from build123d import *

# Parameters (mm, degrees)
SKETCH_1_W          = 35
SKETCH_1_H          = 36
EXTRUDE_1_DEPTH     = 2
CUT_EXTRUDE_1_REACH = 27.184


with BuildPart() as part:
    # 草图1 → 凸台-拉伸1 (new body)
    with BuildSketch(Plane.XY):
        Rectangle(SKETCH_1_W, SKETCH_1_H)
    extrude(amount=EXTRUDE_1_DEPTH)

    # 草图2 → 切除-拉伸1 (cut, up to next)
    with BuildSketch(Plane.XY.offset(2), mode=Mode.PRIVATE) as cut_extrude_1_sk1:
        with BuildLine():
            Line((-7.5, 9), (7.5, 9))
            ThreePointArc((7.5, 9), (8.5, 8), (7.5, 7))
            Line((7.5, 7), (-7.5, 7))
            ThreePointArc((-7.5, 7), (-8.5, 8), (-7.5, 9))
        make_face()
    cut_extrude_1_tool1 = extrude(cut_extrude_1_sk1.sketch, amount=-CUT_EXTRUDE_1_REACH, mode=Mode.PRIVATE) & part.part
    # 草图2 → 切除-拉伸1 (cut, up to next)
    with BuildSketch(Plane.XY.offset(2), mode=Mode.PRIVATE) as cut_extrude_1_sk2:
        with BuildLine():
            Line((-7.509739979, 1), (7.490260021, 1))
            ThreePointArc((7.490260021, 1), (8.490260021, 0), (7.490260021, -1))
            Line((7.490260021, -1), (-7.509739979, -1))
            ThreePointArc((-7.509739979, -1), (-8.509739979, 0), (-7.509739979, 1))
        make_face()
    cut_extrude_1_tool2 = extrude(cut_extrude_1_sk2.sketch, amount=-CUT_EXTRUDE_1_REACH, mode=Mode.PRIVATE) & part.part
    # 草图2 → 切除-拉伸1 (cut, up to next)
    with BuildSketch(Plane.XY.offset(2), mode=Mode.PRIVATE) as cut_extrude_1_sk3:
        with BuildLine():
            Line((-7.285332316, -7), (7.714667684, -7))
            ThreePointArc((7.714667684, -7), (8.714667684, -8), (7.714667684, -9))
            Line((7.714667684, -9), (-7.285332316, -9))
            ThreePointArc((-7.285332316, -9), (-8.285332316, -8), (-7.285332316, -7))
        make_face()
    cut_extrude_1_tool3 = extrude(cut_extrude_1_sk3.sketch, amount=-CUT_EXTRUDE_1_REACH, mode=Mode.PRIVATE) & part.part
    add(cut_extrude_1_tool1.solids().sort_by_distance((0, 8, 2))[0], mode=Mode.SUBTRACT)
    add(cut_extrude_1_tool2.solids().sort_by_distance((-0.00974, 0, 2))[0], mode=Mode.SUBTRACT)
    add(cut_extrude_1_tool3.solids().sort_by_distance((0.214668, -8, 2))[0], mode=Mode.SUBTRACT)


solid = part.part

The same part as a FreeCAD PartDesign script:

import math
import FreeCAD as App
import Part
import Sketcher

V = App.Vector

doc = App.newDocument("Part")
params = doc.addObject("Spreadsheet::Sheet", "Params")
for row, (alias, value) in enumerate([
    ("sketch1_width", "35 mm"),
    ("sketch1_height", "36 mm"),
    ("pad1_length", "2 mm"),
    ("sketch2_radius", "1 mm"),
    ("sketch2_width", "15 mm"),
    ("sketch3_radius", "1 mm"),
    ("sketch3_width", "15 mm"),
    ("sketch4_radius", "1 mm"),
    ("sketch4_width", "15 mm"),
], start=1):
    params.set(f"A{row}", alias)
    params.set(f"B{row}", "=" + value)
    params.setAlias(f"B{row}", alias)

body = doc.addObject("PartDesign::Body", "Body")

sketch1 = doc.addObject("Sketcher::SketchObject", "Sketch")
body.addObject(sketch1)
sketch1.AttachmentSupport = (doc.XY_Plane, [""])
sketch1.MapMode = "FlatFace"
sketch1.addGeometry([
    Part.LineSegment(V(-18, 18, 0), V(-18, -18, 0)),
    Part.LineSegment(V(-18, -18, 0), V(18, -18, 0)),
    Part.LineSegment(V(18, -18, 0), V(18, 18, 0)),
    Part.LineSegment(V(18, 18, 0), V(-18, 18, 0)),
], False)
sketch1.addConstraint([
    Sketcher.Constraint("Coincident", 0, 2, 1, 1),
    Sketcher.Constraint("Coincident", 1, 2, 2, 1),
    Sketcher.Constraint("Coincident", 2, 2, 3, 1),
    Sketcher.Constraint("Coincident", 3, 2, 0, 1),
    Sketcher.Constraint("Vertical", 0),
    Sketcher.Constraint("Horizontal", 1),
    Sketcher.Constraint("Vertical", 2),
    Sketcher.Constraint("Horizontal", 3),
    Sketcher.Constraint("Symmetric", 0, 2, 2, 2, -1, 1),
    Sketcher.Constraint("DistanceX", 1, 1, 1, 2, 35.0),
    Sketcher.Constraint("DistanceY", 0, 2, 0, 1, 36.0),
])
sketch1.setExpression("Constraints[9]", "Params.sketch1_width")
sketch1.setExpression("Constraints[10]", "Params.sketch1_height")
pad1 = doc.addObject("PartDesign::Pad", "Pad")
body.addObject(pad1)
pad1.Profile = sketch1
pad1.setExpression("Length", "Params.pad1_length")

sketch2 = doc.addObject("Sketcher::SketchObject", "Sketch001")
body.addObject(sketch2)
sketch2.AttachmentSupport = (doc.XY_Plane, [""])
sketch2.MapMode = "FlatFace"
sketch2.AttachmentOffset = App.Placement(V(0, 0, 2), App.Rotation())
sketch2.addGeometry([
    Part.LineSegment(V(7.5, 9, 0), V(-7.5, 9, 0)),
    Part.ArcOfCircle(Part.Circle(V(-7.5, 8, 0), V(0, 0, 1), 1), math.radians(90), math.radians(270)),
    Part.LineSegment(V(-7.5, 7, 0), V(7.5, 7, 0)),
    Part.ArcOfCircle(Part.Circle(V(7.5, 8, 0), V(0, 0, 1), 1), math.radians(-90), math.radians(90)),
], False)
sketch2.addConstraint([
    Sketcher.Constraint("Tangent", 0, 2, 1, 1),
    Sketcher.Constraint("Tangent", 1, 2, 2, 1),
    Sketcher.Constraint("Tangent", 2, 2, 3, 1),
    Sketcher.Constraint("Tangent", 3, 2, 0, 1),
    Sketcher.Constraint("Horizontal", 0),
    Sketcher.Constraint("Horizontal", 2),
    Sketcher.Constraint("Radius", 1, 1.0),
    Sketcher.Constraint("DistanceX", 0, 2, 0, 1, 15.0),
    Sketcher.Constraint("DistanceY", -1, 1, 1, 3, 8.0),
    Sketcher.Constraint("DistanceX", 1, 3, -1, 1, 7.5),
])
sketch2.setExpression("Constraints[6]", "Params.sketch2_radius")
sketch2.setExpression("Constraints[7]", "Params.sketch2_width")
pocket1 = doc.addObject("PartDesign::Pocket", "Pocket")
body.addObject(pocket1)
pocket1.Profile = sketch2
pocket1.Type = "UpToFirst"

sketch3 = doc.addObject("Sketcher::SketchObject", "Sketch002")
body.addObject(sketch3)
sketch3.AttachmentSupport = (doc.XY_Plane, [""])
sketch3.MapMode = "FlatFace"
sketch3.AttachmentOffset = App.Placement(V(0, 0, 2), App.Rotation())
sketch3.addGeometry([
    Part.LineSegment(V(7.5, 1, 0), V(-7.5, 1, 0)),
    Part.ArcOfCircle(Part.Circle(V(-7.5, 0, 0), V(0, 0, 1), 1), math.radians(90), math.radians(270)),
    Part.LineSegment(V(-7.5, -1, 0), V(7.5, -1, 0)),
    Part.ArcOfCircle(Part.Circle(V(7.5, 0, 0), V(0, 0, 1), 1), math.radians(-90), math.radians(90)),
], False)
sketch3.addConstraint([
    Sketcher.Constraint("Tangent", 0, 2, 1, 1),
    Sketcher.Constraint("Tangent", 1, 2, 2, 1),
    Sketcher.Constraint("Tangent", 2, 2, 3, 1),
    Sketcher.Constraint("Tangent", 3, 2, 0, 1),
    Sketcher.Constraint("Horizontal", 0),
    Sketcher.Constraint("Horizontal", 2),
    Sketcher.Constraint("PointOnObject", 1, 3, -1),
    Sketcher.Constraint("Radius", 1, 1.0),
    Sketcher.Constraint("DistanceX", 0, 2, 0, 1, 15.0),
    Sketcher.Constraint("DistanceX", 1, 3, -1, 1, 7.50974),
])
sketch3.setExpression("Constraints[7]", "Params.sketch3_radius")
sketch3.setExpression("Constraints[8]", "Params.sketch3_width")
pocket2 = doc.addObject("PartDesign::Pocket", "Pocket001")
body.addObject(pocket2)
pocket2.Profile = sketch3
pocket2.Type = "UpToFirst"

sketch4 = doc.addObject("Sketcher::SketchObject", "Sketch003")
body.addObject(sketch4)
sketch4.AttachmentSupport = (doc.XY_Plane, [""])
sketch4.MapMode = "FlatFace"
sketch4.AttachmentOffset = App.Placement(V(0, 0, 2), App.Rotation())
sketch4.addGeometry([
    Part.LineSegment(V(7.7, -7, 0), V(-7.3, -7, 0)),
    Part.ArcOfCircle(Part.Circle(V(-7.3, -8, 0), V(0, 0, 1), 1), math.radians(90), math.radians(270)),
    Part.LineSegment(V(-7.3, -9, 0), V(7.7, -9, 0)),
    Part.ArcOfCircle(Part.Circle(V(7.7, -8, 0), V(0, 0, 1), 1), math.radians(-90), math.radians(90)),
], False)
sketch4.addConstraint([
    Sketcher.Constraint("Tangent", 0, 2, 1, 1),
    Sketcher.Constraint("Tangent", 1, 2, 2, 1),
    Sketcher.Constraint("Tangent", 2, 2, 3, 1),
    Sketcher.Constraint("Tangent", 3, 2, 0, 1),
    Sketcher.Constraint("Horizontal", 0),
    Sketcher.Constraint("Horizontal", 2),
    Sketcher.Constraint("Radius", 1, 1.0),
    Sketcher.Constraint("DistanceX", 0, 2, 0, 1, 15.0),
    Sketcher.Constraint("DistanceY", 1, 3, -1, 1, 8.0),
    Sketcher.Constraint("DistanceX", 1, 3, -1, 1, 7.285332),
])
sketch4.setExpression("Constraints[6]", "Params.sketch4_radius")
sketch4.setExpression("Constraints[7]", "Params.sketch4_width")
pocket3 = doc.addObject("PartDesign::Pocket", "Pocket002")
body.addObject(pocket3)
pocket3.Profile = sketch4
pocket3.Type = "UpToFirst"

doc.recompute()
